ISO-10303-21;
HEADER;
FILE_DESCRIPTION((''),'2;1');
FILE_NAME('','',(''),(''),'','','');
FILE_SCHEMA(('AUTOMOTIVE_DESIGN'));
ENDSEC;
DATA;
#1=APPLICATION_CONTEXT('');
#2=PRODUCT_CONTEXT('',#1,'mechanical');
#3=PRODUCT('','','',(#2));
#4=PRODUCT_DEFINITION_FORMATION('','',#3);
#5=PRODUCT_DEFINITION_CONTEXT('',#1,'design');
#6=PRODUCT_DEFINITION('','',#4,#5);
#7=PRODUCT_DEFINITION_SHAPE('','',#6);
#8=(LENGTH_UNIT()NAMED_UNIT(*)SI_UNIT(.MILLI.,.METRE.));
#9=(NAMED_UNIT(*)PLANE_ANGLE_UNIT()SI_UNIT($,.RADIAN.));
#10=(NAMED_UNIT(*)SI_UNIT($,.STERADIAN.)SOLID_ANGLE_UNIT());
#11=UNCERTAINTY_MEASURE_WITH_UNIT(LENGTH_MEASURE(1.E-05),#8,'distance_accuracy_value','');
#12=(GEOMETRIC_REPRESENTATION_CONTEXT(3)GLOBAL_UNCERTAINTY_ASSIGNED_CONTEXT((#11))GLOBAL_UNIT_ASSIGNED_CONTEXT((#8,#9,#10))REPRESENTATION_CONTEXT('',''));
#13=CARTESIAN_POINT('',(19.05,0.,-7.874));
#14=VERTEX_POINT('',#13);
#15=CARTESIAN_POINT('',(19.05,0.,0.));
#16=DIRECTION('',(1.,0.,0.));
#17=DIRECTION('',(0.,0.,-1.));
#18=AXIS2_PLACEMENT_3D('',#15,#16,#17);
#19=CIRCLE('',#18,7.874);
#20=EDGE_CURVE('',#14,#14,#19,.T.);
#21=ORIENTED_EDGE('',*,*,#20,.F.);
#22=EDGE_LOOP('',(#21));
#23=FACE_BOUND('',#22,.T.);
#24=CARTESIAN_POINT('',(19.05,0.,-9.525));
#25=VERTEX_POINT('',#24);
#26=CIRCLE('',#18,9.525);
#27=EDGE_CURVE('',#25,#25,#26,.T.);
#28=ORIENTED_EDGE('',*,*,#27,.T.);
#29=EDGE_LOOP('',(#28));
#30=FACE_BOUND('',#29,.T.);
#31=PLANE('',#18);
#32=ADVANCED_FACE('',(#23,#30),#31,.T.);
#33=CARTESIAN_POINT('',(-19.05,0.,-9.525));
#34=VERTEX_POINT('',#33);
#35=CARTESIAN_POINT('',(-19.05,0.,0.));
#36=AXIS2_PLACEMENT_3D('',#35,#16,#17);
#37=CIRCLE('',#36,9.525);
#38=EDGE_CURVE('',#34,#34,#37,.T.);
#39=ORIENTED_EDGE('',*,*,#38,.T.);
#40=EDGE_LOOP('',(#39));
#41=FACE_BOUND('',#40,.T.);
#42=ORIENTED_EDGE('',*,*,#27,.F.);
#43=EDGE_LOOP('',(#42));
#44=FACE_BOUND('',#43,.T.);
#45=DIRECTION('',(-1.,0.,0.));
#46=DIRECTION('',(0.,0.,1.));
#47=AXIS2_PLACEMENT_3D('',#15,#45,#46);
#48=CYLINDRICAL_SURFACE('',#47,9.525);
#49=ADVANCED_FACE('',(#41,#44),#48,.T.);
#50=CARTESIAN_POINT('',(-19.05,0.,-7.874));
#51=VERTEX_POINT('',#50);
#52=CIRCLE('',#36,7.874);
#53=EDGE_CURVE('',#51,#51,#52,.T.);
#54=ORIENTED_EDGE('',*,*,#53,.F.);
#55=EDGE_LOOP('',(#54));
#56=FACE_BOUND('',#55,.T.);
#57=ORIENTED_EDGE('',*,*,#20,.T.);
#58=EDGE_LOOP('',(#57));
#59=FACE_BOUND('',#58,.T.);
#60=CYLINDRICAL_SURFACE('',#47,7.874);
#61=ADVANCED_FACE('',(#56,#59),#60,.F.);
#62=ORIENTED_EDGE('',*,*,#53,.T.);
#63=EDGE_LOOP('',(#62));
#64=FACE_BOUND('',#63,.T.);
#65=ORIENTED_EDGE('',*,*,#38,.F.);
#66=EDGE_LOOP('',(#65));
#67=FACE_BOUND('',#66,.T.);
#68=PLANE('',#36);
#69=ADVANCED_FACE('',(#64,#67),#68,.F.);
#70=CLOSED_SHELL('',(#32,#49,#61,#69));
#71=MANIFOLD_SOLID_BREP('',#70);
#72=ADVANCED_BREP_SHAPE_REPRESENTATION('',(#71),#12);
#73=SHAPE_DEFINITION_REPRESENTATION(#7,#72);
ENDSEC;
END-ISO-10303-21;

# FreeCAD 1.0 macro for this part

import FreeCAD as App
import Part
import Sketcher
from FreeCAD import Vector
Q = App.Units.Quantity

doc = App.newDocument("Part")
body = doc.addObject("PartDesign::Body", "Body")

# Sketch on YZ plane
sketch1 = body.newObject("Sketcher::SketchObject", "Sketch")
sketch1.AttachmentSupport = (doc.getObject("YZ_Plane"), [""])
sketch1.MapMode = "FlatFace"
sketch1.addGeometry([
    Part.Circle(Vector(0, 0, 0), Vector(0, 0, 1), 10),
    Part.Circle(Vector(0, 0, 0), Vector(0, 0, 1), 8),
], False)
sketch1.addConstraint([
    Sketcher.Constraint("Coincident", 0, 3, -1, 1),
    Sketcher.Constraint("Coincident", 1, 3, -1, 1),
    Sketcher.Constraint("Diameter", 0, Q("0.75 in")),
    Sketcher.Constraint("Diameter", 1, Q("0.62 in")),
])
pad1 = body.newObject("PartDesign::Pad", "Pad")
pad1.Profile = sketch1
pad1.Length = Q("1.5 in")
pad1.Midplane = True

doc.recompute()
